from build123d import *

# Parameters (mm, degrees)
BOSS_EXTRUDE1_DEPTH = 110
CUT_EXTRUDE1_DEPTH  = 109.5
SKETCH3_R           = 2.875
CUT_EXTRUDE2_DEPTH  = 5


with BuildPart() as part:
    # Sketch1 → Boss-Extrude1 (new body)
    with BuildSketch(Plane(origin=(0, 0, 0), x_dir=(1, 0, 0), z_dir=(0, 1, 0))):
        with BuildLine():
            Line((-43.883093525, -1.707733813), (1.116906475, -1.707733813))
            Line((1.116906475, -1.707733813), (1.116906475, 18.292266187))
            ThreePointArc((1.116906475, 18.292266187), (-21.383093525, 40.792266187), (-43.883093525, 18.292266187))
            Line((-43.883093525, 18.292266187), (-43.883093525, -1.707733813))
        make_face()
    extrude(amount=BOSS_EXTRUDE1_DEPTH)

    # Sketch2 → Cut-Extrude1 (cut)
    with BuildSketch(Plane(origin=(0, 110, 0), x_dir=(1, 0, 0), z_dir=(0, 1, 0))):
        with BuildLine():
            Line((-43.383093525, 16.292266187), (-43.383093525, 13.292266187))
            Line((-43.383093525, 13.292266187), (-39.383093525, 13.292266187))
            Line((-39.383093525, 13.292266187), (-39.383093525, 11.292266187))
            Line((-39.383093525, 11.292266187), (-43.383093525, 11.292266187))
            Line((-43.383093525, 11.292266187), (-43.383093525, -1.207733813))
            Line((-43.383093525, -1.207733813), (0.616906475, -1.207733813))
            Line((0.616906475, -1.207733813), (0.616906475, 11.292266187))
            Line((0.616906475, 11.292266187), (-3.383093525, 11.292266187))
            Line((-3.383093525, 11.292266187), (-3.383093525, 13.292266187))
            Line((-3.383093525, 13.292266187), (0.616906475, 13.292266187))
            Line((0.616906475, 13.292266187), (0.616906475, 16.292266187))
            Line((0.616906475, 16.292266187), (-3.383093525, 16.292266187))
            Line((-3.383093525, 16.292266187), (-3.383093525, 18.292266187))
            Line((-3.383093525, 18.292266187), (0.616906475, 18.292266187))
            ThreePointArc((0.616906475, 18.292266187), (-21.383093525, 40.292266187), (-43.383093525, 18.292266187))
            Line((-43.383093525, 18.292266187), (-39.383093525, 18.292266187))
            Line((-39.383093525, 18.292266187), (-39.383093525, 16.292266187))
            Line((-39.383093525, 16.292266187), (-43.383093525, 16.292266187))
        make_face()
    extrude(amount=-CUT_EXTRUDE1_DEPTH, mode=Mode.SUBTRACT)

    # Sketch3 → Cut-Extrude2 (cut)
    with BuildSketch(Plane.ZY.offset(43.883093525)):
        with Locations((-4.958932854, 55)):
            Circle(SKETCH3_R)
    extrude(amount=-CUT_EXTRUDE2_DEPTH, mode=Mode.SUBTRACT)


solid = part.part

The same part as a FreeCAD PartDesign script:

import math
import FreeCAD as App
import Part
import Sketcher
Q = App.Units.Quantity

doc = App.newDocument("Part")
params = doc.addObject("Spreadsheet::Sheet", "Params")
for row, (alias, value) in enumerate([
    ("sketch1_radius", "22.5 mm"),
    ("sketch1_height", "20 mm"),
    ("pad1_length", "110 mm"),
    ("sketch2_radius", "22 mm"),
    ("sketch2_width", "4 mm"),
    ("sketch2_height", "3 mm"),
    ("sketch2_height2", "2 mm"),
    ("sketch2_height3", "12.5 mm"),
    ("pocket1_length", "109.5 mm"),
    ("sketch3_diameter", "5.75 mm"),
    ("pocket2_length", "5 mm"),
], start=1):
    params.set(f"A{row}", alias)
    params.set(f"B{row}", "=" + value)
    params.setAlias(f"B{row}", alias)

body = doc.addObject("PartDesign::Body", "Body")

# Sketch on XZ plane
sketch1 = body.newObject("Sketcher::SketchObject", "Sketch")
sketch1.AttachmentSupport = (doc.getObject("XZ_Plane"), [""])
sketch1.MapMode = "FlatFace"
sketch1.addGeometry(Part.LineSegment(App.Vector(-44, 2, 0), App.Vector(1, 2, 0)), False)
sketch1.addGeometry(Part.LineSegment(App.Vector(1, 2, 0), App.Vector(1, -18, 0)), False)
sketch1.addGeometry(Part.ArcOfCircle(Part.Circle(App.Vector(-21, -18, 0), App.Vector(0, 0, 1), 22), math.radians(180), math.radians(360)), False)
sketch1.addGeometry(Part.LineSegment(App.Vector(-44, -18, 0), App.Vector(-44, 2, 0)), False)
sketch1.addConstraint(Sketcher.Constraint("Coincident", 0, 2, 1, 1))
sketch1.addConstraint(Sketcher.Constraint("Tangent", 1, 2, 2, 2))
sketch1.addConstraint(Sketcher.Constraint("Tangent", 2, 1, 3, 1))
sketch1.addConstraint(Sketcher.Constraint("Coincident", 3, 2, 0, 1))
sketch1.addConstraint(Sketcher.Constraint("Horizontal", 0))
sketch1.addConstraint(Sketcher.Constraint("Vertical", 1))
sketch1.addConstraint(Sketcher.Constraint("Vertical", 3))
sketch1.addConstraint(Sketcher.Constraint("Radius", 2, Q("22.5 mm")))
sketch1.addConstraint(Sketcher.Constraint("DistanceY", 1, 2, 1, 1, Q("20 mm")))
sketch1.addConstraint(Sketcher.Constraint("DistanceX", 2, 3, -1, 1, Q("21.383094 mm")))
sketch1.addConstraint(Sketcher.Constraint("DistanceY", 2, 3, -1, 1, Q("18.292266 mm")))
sketch1.setExpression("Constraints[7]", "Params.sketch1_radius")
sketch1.setExpression("Constraints[8]", "Params.sketch1_height")
pad1 = body.newObject("PartDesign::Pad", "Pad")
pad1.Profile = sketch1
pad1.setExpression("Length", "Params.pad1_length")
pad1.Reversed = True

# Sketch on XZ plane
sketch2 = body.newObject("Sketcher::SketchObject", "Sketch001")
sketch2.AttachmentSupport = (doc.getObject("XZ_Plane"), [""])
sketch2.MapMode = "FlatFace"
sketch2.AttachmentOffset = App.Placement(App.Vector(0, 0, -110), App.Rotation())
sketch2.addGeometry(Part.LineSegment(App.Vector(-43.4, -16.3, 0), App.Vector(-43.4, -13.3, 0)), False)
sketch2.addGeometry(Part.LineSegment(App.Vector(-43.4, -13.3, 0), App.Vector(-39.4, -13.3, 0)), False)
sketch2.addGeometry(Part.LineSegment(App.Vector(-39.4, -13.3, 0), App.Vector(-39.4, -11.3, 0)), False)
sketch2.addGeometry(Part.LineSegment(App.Vector(-39.4, -11.3, 0), App.Vector(-43.4, -11.3, 0)), False)
sketch2.addGeometry(Part.LineSegment(App.Vector(-43.4, -11.3, 0), App.Vector(-43.4, 1.2, 0)), False)
sketch2.addGeometry(Part.LineSegment(App.Vector(-43.4, 1.2, 0), App.Vector(0.6, 1.2, 0)), False)
sketch2.addGeometry(Part.LineSegment(App.Vector(0.6, 1.2, 0), App.Vector(0.6, -11.3, 0)), False)
sketch2.addGeometry(Part.LineSegment(App.Vector(0.6, -11.3, 0), App.Vector(-3.4, -11.3, 0)), False)
sketch2.addGeometry(Part.LineSegment(App.Vector(-3.4, -11.3, 0), App.Vector(-3.4, -13.3, 0)), False)
sketch2.addGeometry(Part.LineSegment(App.Vector(-3.4, -13.3, 0), App.Vector(0.6, -13.3, 0)), False)
sketch2.addGeometry(Part.LineSegment(App.Vector(0.6, -13.3, 0), App.Vector(0.6, -16.3, 0)), False)
sketch2.addGeometry(Part.LineSegment(App.Vector(0.6, -16.3, 0), App.Vector(-3.4, -16.3, 0)), False)
sketch2.addGeometry(Part.LineSegment(App.Vector(-3.4, -16.3, 0), App.Vector(-3.4, -18.3, 0)), False)
sketch2.addGeometry(Part.LineSegment(App.Vector(-3.4, -18.3, 0), App.Vector(0.6, -18.3, 0)), False)
sketch2.addGeometry(Part.ArcOfCircle(Part.Circle(App.Vector(-21.4, -18.3, 0), App.Vector(0, 0, 1), 22), math.radians(180), math.radians(360)), False)
sketch2.addGeometry(Part.LineSegment(App.Vector(-43.4, -18.3, 0), App.Vector(-39.4, -18.3, 0)), False)
sketch2.addGeometry(Part.LineSegment(App.Vector(-39.4, -18.3, 0), App.Vector(-39.4, -16.3, 0)), False)
sketch2.addGeometry(Part.LineSegment(App.Vector(-39.4, -16.3, 0), App.Vector(-43.4, -16.3, 0)), False)
sketch2.addConstraint(Sketcher.Constraint("Coincident", 0, 2, 1, 1))
sketch2.addConstraint(Sketcher.Constraint("Coincident", 1, 2, 2, 1))
sketch2.addConstraint(Sketcher.Constraint("Coincident", 2, 2, 3, 1))
sketch2.addConstraint(Sketcher.Constraint("Coincident", 3, 2, 4, 1))
sketch2.addConstraint(Sketcher.Constraint("Coincident", 4, 2, 5, 1))
sketch2.addConstraint(Sketcher.Constraint("Coincident", 5, 2, 6, 1))
sketch2.addConstraint(Sketcher.Constraint("Coincident", 6, 2, 7, 1))
sketch2.addConstraint(Sketcher.Constraint("Coincident", 7, 2, 8, 1))
sketch2.addConstraint(Sketcher.Constraint("Coincident", 8, 2, 9, 1))
sketch2.addConstraint(Sketcher.Constraint("Coincident", 9, 2, 10, 1))
sketch2.addConstraint(Sketcher.Constraint("Coincident", 10, 2, 11, 1))
sketch2.addConstraint(Sketcher.Constraint("Coincident", 11, 2, 12, 1))
sketch2.addConstraint(Sketcher.Constraint("Coincident", 12, 2, 13, 1))
sketch2.addConstraint(Sketcher.Constraint("Coincident", 13, 2, 14, 2))
sketch2.addConstraint(Sketcher.Constraint("Coincident", 14, 1, 15, 1))
sketch2.addConstraint(Sketcher.Constraint("Coincident", 15, 2, 16, 1))
sketch2.addConstraint(Sketcher.Constraint("Coincident", 16, 2, 17, 1))
sketch2.addConstraint(Sketcher.Constraint("Coincident", 17, 2, 0, 1))
sketch2.addConstraint(Sketcher.Constraint("Vertical", 0))
sketch2.addConstraint(Sketcher.Constraint("Horizontal", 1))
sketch2.addConstraint(Sketcher.Constraint("Vertical", 2))
sketch2.addConstraint(Sketcher.Constraint("Horizontal", 3))
sketch2.addConstraint(Sketcher.Constraint("Vertical", 4))
sketch2.addConstraint(Sketcher.Constraint("Horizontal", 5))
sketch2.addConstraint(Sketcher.Constraint("Vertical", 6))
sketch2.addConstraint(Sketcher.Constraint("Horizontal", 7))
sketch2.addConstraint(Sketcher.Constraint("Vertical", 8))
sketch2.addConstraint(Sketcher.Constraint("Horizontal", 9))
sketch2.addConstraint(Sketcher.Constraint("Vertical", 10))
sketch2.addConstraint(Sketcher.Constraint("Horizontal", 11))
sketch2.addConstraint(Sketcher.Constraint("Vertical", 12))
sketch2.addConstraint(Sketcher.Constraint("Horizontal", 13))
sketch2.addConstraint(Sketcher.Constraint("Horizontal", 15))
sketch2.addConstraint(Sketcher.Constraint("Vertical", 16))
sketch2.addConstraint(Sketcher.Constraint("Horizontal", 17))
sketch2.addConstraint(Sketcher.Constraint("Horizontal", 3, 2, 6, 2))
sketch2.addConstraint(Sketcher.Constraint("Horizontal", 1, 2, 8, 2))
sketch2.addConstraint(Sketcher.Constraint("Horizontal", 14, 3, 12, 2))
sketch2.addConstraint(Sketcher.Constraint("Horizontal", 13, 2, 14, 1))
sketch2.addConstraint(Sketcher.Constraint("Horizontal", 11, 2, 16, 2))
sketch2.addConstraint(Sketcher.Constraint("Vertical", 0, 2, 3, 2))
sketch2.addConstraint(Sketcher.Constraint("Vertical", 6, 2, 9, 2))
sketch2.addConstraint(Sketcher.Constraint("Vertical", 8, 2, 11, 2))
sketch2.addConstraint(Sketcher.Constraint("Vertical", 10, 2, 13, 2))
sketch2.addConstraint(Sketcher.Constraint("Vertical", 4, 2, 14, 1))
sketch2.addConstraint(Sketcher.Constraint("Vertical", 2, 2, 15, 2))
sketch2.addConstraint(Sketcher.Constraint("Equal", 3, 7))
sketch2.addConstraint(Sketcher.Constraint("Equal", 8, 12))
sketch2.addConstraint(Sketcher.Constraint("Radius", 14, Q("22 mm")))
sketch2.addConstraint(Sketcher.Constraint("DistanceX", 1, 1, 1, 2, Q("4 mm")))
sketch2.addConstraint(Sketcher.Constraint("DistanceY", 0, 1, 0, 2, Q("3 mm")))
sketch2.addConstraint(Sketcher.Constraint("DistanceY", 2, 1, 2, 2, Q("2 mm")))
sketch2.addConstraint(Sketcher.Constraint("DistanceY", 4, 1, 4, 2, Q("12.5 mm")))
sketch2.addConstraint(Sketcher.Constraint("DistanceX", 14, 3, -1, 1, Q("21.383094 mm")))
sketch2.addConstraint(Sketcher.Constraint("DistanceY", 14, 3, -1, 1, Q("18.292266 mm")))
sketch2.setExpression("Constraints[48]", "Params.sketch2_radius")
sketch2.setExpression("Constraints[49]", "Params.sketch2_width")
sketch2.setExpression("Constraints[50]", "Params.sketch2_height")
sketch2.setExpression("Constraints[51]", "Params.sketch2_height2")
sketch2.setExpression("Constraints[52]", "Params.sketch2_height3")
pocket1 = body.newObject("PartDesign::Pocket", "Pocket")
pocket1.Profile = sketch2
pocket1.setExpression("Length", "Params.pocket1_length")
pocket1.Reversed = True

# Sketch on YZ plane
sketch3 = body.newObject("Sketcher::SketchObject", "Sketch002")
sketch3.AttachmentSupport = (doc.getObject("YZ_Plane"), [""])
sketch3.MapMode = "FlatFace"
sketch3.AttachmentOffset = App.Placement(App.Vector(0, 0, -43.883094), App.Rotation())
sketch3.addGeometry(Part.Circle(App.Vector(55, -5, 0), App.Vector(0, 0, 1), 2.9), False)
sketch3.addConstraint(Sketcher.Constraint("Diameter", 0, Q("5.75 mm")))
sketch3.addConstraint(Sketcher.Constraint("DistanceX", -1, 1, 0, 3, Q("55 mm")))
sketch3.addConstraint(Sketcher.Constraint("DistanceY", 0, 3, -1, 1, Q("4.958933 mm")))
sketch3.setExpression("Constraints[0]", "Params.sketch3_diameter")
pocket2 = body.newObject("PartDesign::Pocket", "Pocket001")
pocket2.Profile = sketch3
pocket2.setExpression("Length", "Params.pocket2_length")
pocket2.Reversed = True

doc.recompute()
